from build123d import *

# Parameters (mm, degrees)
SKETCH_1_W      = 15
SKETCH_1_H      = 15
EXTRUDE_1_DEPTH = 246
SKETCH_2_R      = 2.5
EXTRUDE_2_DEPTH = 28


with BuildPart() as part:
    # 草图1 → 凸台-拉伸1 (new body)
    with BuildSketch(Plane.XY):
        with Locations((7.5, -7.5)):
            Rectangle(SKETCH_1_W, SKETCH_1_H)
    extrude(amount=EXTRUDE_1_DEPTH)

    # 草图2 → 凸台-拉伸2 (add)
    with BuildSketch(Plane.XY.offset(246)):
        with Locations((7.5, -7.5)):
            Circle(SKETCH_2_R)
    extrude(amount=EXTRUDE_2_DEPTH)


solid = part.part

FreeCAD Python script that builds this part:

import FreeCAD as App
import Part
import Sketcher
from FreeCAD import Vector

doc = App.newDocument("Part")
body = doc.addObject("PartDesign::Body", "Body")

sketch1 = body.newObject("Sketcher::SketchObject", "Sketch")
sketch1.AttachmentSupport = (doc.getObject("XY_Plane"), [""])
sketch1.MapMode = "FlatFace"
sketch1.addGeometry([
    Part.LineSegment(Vector(0, 0, 0), Vector(0, -15, 0)),
    Part.LineSegment(Vector(0, -15, 0), Vector(15, -15, 0)),
    Part.LineSegment(Vector(15, -15, 0), Vector(15, 0, 0)),
    Part.LineSegment(Vector(15, 0, 0), Vector(0, 0, 0)),
], False)
sketch1.addConstraint([
    Sketcher.Constraint("Coincident", 0, 2, 1, 1),
    Sketcher.Constraint("Coincident", 1, 2, 2, 1),
    Sketcher.Constraint("Coincident", 2, 2, 3, 1),
    Sketcher.Constraint("Coincident", 3, 2, 0, 1),
    Sketcher.Constraint("Vertical", 0),
    Sketcher.Constraint("Horizontal", 1),
    Sketcher.Constraint("Vertical", 2),
    Sketcher.Constraint("Horizontal", 3),
    Sketcher.Constraint("Coincident", 3, 2, -1, 1),
    Sketcher.Constraint("Equal", 3, 0),
    Sketcher.Constraint("DistanceX", 1, 1, 1, 2, 15.0),
])
pad1 = body.newObject("PartDesign::Pad", "Pad")
pad1.Profile = sketch1
pad1.Length = 246

sketch2 = body.newObject("Sketcher::SketchObject", "Sketch001")
sketch2.AttachmentSupport = (doc.getObject("XY_Plane"), [""])
sketch2.MapMode = "FlatFace"
sketch2.AttachmentOffset = App.Placement(Vector(0, 0, 246), App.Rotation())
sketch2.addGeometry(Part.Circle(Vector(7.5, -7.5, 0), Vector(0, 0, 1), 2.5), False)
sketch2.addConstraint([
    Sketcher.Constraint("Diameter", 0, 5.0),
    Sketcher.Constraint("DistanceX", -1, 1, 0, 3, 7.5),
    Sketcher.Constraint("DistanceY", 0, 3, -1, 1, 7.5),
])
pad2 = body.newObject("PartDesign::Pad", "Pad001")
pad2.Profile = sketch2
pad2.Length = 28

doc.recompute()
